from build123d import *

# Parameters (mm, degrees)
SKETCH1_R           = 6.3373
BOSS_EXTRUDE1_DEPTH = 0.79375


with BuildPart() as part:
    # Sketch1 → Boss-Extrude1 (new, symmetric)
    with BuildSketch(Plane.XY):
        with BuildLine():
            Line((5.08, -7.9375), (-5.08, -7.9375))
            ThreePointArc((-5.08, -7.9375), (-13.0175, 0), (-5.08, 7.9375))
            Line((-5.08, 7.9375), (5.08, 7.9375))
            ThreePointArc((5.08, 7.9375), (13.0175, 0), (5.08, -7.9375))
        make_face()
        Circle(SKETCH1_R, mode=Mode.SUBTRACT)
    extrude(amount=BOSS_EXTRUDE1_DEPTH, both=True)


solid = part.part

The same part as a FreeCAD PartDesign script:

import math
import FreeCAD as App
import Part
import Sketcher
Q = App.Units.Quantity

doc = App.newDocument("Part")
body = doc.addObject("PartDesign::Body", "Body")

sketch1 = body.newObject("Sketcher::SketchObject", "Sketch")
sketch1.AttachmentSupport = (doc.getObject("XY_Plane"), [""])
sketch1.MapMode = "FlatFace"
sketch1.addGeometry(Part.LineSegment(App.Vector(-5.08, -7.9375, 0), App.Vector(5.08, -7.9375, 0)), False)
sketch1.addGeometry(Part.ArcOfCircle(Part.Circle(App.Vector(5.08, 0, 0), App.Vector(0, 0, 1), 7.9375), math.radians(-90), math.radians(90)), False)
sketch1.addGeometry(Part.LineSegment(App.Vector(5.08, 7.9375, 0), App.Vector(-5.08, 7.9375, 0)), False)
sketch1.addGeometry(Part.ArcOfCircle(Part.Circle(App.Vector(-5.08, 0, 0), App.Vector(0, 0, 1), 7.9375), math.radians(90), math.radians(270)), False)
sketch1.addGeometry(Part.Circle(App.Vector(0, 0, 0), App.Vector(0, 0, 1), 6.3373), False)
sketch1.addConstraint(Sketcher.Constraint("Tangent", 0, 2, 1, 1))
sketch1.addConstraint(Sketcher.Constraint("Tangent", 1, 2, 2, 1))
sketch1.addConstraint(Sketcher.Constraint("Tangent", 2, 2, 3, 1))
sketch1.addConstraint(Sketcher.Constraint("Tangent", 3, 2, 0, 1))
sketch1.addConstraint(Sketcher.Constraint("Horizontal", 0))
sketch1.addConstraint(Sketcher.Constraint("Horizontal", 2))
sketch1.addConstraint(Sketcher.Constraint("Coincident", 4, 3, -1, 1))
sketch1.addConstraint(Sketcher.Constraint("Symmetric", 1, 3, 3, 3, -1, 1))
sketch1.addConstraint(Sketcher.Constraint("Diameter", 4, Q("0.499 in")))
sketch1.addConstraint(Sketcher.Constraint("DistanceX", 0, 1, 0, 2, Q("0.4 in")))
sketch1.addConstraint(Sketcher.Constraint("Radius", 1, Q("0.3125 in")))
pad1 = body.newObject("PartDesign::Pad", "Pad")
pad1.Profile = sketch1
pad1.Length = Q("0.0625 in")
pad1.Midplane = True

doc.recompute()
